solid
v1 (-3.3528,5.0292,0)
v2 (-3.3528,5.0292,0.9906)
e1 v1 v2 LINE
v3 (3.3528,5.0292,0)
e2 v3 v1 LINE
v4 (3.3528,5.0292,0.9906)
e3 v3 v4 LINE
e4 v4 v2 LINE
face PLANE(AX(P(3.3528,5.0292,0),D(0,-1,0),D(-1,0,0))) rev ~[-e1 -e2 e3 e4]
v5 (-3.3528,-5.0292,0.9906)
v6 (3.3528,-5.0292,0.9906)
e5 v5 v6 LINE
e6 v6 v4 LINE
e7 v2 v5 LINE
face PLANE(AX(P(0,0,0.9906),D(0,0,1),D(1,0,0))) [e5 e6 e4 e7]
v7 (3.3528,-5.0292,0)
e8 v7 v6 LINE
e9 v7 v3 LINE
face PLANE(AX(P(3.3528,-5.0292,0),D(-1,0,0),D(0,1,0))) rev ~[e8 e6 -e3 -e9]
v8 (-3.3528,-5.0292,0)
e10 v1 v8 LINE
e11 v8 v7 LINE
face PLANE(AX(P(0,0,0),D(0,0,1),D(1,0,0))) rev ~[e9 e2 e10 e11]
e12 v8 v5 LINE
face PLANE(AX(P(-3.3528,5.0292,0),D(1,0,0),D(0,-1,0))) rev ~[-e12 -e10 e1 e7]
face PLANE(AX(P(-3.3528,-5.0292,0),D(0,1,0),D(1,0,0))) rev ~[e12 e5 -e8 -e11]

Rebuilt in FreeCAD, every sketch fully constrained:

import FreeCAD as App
import Part
import Sketcher

V = App.Vector
Q = App.Units.Quantity


def add_polygon(sketch, points):
    """Adds a closed chain of lines whose ends are joined by coincident constraints."""
    first, n = sketch.GeometryCount, len(points)
    for a, b in zip(points, points[1:] + points[:1]):
        sketch.addGeometry(Part.LineSegment(App.Vector(*a, 0), App.Vector(*b, 0)), False)
    for i in range(n):
        sketch.addConstraint(Sketcher.Constraint("Coincident", first + i, 2, first + (i + 1) % n, 1))

doc = App.newDocument("Part")
body = doc.addObject("PartDesign::Body", "Body")

# Sketch on XY plane
sketch1 = body.newObject("Sketcher::SketchObject", "Sketch")
sketch1.AttachmentSupport = (doc.getObject("XY_Plane"), [""])
sketch1.MapMode = "FlatFace"
add_polygon(sketch1, [(-3.3528, 5.0292), (-3.3528, -5.0292), (3.3528, -5.0292), (3.3528, 5.0292)])  # lines 0-3
sketch1.addConstraint([
    Sketcher.Constraint("Vertical", 0),
    Sketcher.Constraint("Horizontal", 1),
    Sketcher.Constraint("Vertical", 2),
    Sketcher.Constraint("Horizontal", 3),
    Sketcher.Constraint("Symmetric", 0, 2, 2, 2, -1, 1),
    Sketcher.Constraint("DistanceX", 1, 1, 1, 2, Q("0.264 in")),
    Sketcher.Constraint("DistanceY", 0, 2, 0, 1, Q("0.396 in")),
])
pad1 = body.newObject("PartDesign::Pad", "Pad")
pad1.Profile = sketch1
pad1.Length = Q("0.039 in")

doc.recompute()
